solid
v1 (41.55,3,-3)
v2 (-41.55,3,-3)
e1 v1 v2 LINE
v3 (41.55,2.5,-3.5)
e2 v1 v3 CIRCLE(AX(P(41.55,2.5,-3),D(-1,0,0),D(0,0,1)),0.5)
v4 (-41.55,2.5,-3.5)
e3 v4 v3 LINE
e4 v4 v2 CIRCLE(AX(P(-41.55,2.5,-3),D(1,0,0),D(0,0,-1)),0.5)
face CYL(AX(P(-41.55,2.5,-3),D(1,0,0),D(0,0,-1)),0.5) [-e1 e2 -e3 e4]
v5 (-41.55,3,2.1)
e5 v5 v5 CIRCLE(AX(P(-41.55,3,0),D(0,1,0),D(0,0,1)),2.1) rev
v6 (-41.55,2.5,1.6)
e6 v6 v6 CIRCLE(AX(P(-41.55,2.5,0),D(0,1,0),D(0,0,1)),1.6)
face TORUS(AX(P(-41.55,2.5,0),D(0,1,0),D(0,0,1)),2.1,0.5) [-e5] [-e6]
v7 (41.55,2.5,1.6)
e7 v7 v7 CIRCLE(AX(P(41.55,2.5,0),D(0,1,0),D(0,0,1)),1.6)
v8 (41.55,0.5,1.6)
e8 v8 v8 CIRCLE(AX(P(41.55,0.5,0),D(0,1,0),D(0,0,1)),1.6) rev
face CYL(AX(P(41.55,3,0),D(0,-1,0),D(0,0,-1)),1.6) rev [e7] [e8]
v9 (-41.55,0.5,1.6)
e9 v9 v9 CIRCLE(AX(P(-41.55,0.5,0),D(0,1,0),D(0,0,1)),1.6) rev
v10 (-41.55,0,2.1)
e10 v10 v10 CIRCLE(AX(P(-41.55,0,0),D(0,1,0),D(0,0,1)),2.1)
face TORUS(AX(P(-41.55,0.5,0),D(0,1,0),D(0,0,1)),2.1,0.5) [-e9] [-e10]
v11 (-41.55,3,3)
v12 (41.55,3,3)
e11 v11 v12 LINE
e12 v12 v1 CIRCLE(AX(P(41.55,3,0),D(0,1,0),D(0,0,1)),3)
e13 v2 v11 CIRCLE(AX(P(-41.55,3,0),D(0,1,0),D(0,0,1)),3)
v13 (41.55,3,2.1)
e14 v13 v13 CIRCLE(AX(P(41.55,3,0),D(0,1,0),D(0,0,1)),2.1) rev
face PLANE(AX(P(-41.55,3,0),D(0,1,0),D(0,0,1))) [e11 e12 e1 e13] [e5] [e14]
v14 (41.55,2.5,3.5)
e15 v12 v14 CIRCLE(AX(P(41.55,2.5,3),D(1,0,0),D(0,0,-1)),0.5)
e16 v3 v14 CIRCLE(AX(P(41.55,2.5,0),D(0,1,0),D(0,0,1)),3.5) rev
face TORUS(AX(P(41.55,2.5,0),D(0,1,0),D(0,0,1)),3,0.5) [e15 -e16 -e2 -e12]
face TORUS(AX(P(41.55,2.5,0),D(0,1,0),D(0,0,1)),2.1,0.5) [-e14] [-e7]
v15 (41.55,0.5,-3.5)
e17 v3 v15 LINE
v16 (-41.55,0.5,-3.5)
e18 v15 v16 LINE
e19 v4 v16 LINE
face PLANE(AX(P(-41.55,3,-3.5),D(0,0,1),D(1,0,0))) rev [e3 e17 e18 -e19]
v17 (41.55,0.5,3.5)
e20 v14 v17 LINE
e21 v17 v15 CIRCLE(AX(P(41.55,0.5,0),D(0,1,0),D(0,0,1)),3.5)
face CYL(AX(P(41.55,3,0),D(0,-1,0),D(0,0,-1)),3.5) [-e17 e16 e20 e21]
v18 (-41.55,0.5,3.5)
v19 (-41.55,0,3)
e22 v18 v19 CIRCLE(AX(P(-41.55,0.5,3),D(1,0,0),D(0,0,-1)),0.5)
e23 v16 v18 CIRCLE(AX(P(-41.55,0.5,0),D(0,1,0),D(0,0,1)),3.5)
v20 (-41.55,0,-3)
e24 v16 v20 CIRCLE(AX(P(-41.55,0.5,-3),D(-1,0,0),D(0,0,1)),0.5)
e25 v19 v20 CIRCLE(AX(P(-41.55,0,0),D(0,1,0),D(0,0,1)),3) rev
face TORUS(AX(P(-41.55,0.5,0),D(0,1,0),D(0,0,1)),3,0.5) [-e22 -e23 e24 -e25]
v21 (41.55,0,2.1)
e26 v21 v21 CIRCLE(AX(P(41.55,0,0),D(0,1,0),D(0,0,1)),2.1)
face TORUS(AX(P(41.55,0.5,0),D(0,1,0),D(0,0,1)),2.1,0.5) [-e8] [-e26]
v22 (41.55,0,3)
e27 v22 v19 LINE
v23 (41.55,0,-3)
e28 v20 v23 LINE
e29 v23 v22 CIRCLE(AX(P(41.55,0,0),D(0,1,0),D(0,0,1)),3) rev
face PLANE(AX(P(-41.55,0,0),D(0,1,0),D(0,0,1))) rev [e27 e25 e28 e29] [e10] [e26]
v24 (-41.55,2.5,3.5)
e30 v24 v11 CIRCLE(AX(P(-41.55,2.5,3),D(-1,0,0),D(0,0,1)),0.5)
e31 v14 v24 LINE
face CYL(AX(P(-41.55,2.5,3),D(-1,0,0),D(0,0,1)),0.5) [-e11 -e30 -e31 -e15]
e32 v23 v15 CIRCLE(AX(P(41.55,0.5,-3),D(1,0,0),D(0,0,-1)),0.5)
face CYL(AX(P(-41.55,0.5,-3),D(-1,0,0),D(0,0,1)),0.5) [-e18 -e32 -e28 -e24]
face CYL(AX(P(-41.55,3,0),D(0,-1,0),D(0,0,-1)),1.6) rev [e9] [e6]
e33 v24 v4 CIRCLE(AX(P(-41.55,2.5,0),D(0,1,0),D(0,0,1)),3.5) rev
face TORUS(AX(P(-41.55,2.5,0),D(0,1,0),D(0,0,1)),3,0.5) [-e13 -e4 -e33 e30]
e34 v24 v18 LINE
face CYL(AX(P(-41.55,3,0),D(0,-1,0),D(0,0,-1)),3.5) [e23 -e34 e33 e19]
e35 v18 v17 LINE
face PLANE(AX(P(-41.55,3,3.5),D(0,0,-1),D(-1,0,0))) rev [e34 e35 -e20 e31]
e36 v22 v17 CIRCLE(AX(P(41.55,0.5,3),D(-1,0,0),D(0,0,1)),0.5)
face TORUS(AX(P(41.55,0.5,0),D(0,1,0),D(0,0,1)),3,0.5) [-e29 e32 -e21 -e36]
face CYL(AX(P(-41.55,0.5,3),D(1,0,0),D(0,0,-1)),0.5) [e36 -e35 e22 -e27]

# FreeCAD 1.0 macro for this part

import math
import FreeCAD as App
import Part
import Sketcher


def edges_at(feature, points):
    """Names of the edges that pass closest to the given points."""
    edges = feature.Shape.Edges
    near = lambda p: min(range(len(edges)), key=lambda i: edges[i].distToShape(Part.Vertex(*p))[0])
    return sorted({f"Edge{near(p) + 1}" for p in points})

doc = App.newDocument("Part")
body = doc.addObject("PartDesign::Body", "Body")

sketch1 = doc.addObject("Sketcher::SketchObject", "Sketch")
body.addObject(sketch1)
sketch1.AttachmentSupport = (doc.XZ_Plane, [""])
sketch1.MapMode = "FlatFace"
sketch1.addGeometry(Part.LineSegment(App.Vector(41.55, -3.5, 0), App.Vector(-41.55, -3.5, 0)), False)
sketch1.addGeometry(Part.ArcOfCircle(Part.Circle(App.Vector(-41.55, 0, 0), App.Vector(0, 0, 1), 3.5), math.radians(90), math.radians(270)), False)
sketch1.addGeometry(Part.LineSegment(App.Vector(-41.55, 3.5, 0), App.Vector(41.55, 3.5, 0)), False)
sketch1.addGeometry(Part.ArcOfCircle(Part.Circle(App.Vector(41.55, 0, 0), App.Vector(0, 0, 1), 3.5), math.radians(-90), math.radians(90)), False)
sketch1.addGeometry(Part.Circle(App.Vector(41.55, 0, 0), App.Vector(0, 0, 1), 1.6), False)
sketch1.addGeometry(Part.Circle(App.Vector(-41.55, 0, 0), App.Vector(0, 0, 1), 1.6), False)
sketch1.addConstraint(Sketcher.Constraint("Tangent", 0, 2, 1, 2))
sketch1.addConstraint(Sketcher.Constraint("Tangent", 1, 1, 2, 1))
sketch1.addConstraint(Sketcher.Constraint("Tangent", 2, 2, 3, 2))
sketch1.addConstraint(Sketcher.Constraint("Tangent", 3, 1, 0, 1))
sketch1.addConstraint(Sketcher.Constraint("Horizontal", 0))
sketch1.addConstraint(Sketcher.Constraint("Horizontal", 2))
sketch1.addConstraint(Sketcher.Constraint("Coincident", 4, 3, 3, 3))
sketch1.addConstraint(Sketcher.Constraint("Coincident", 5, 3, 1, 3))
sketch1.addConstraint(Sketcher.Constraint("Equal", 4, 5))
sketch1.addConstraint(Sketcher.Constraint("Symmetric", 1, 3, 3, 3, -1, 1))
sketch1.addConstraint(Sketcher.Constraint("Diameter", 4, 3.2))
sketch1.addConstraint(Sketcher.Constraint("Radius", 1, 3.5))
sketch1.addConstraint(Sketcher.Constraint("DistanceX", 0, 2, 0, 1, 83.1))
pad1 = doc.addObject("PartDesign::Pad", "Pad")
body.addObject(pad1)
pad1.Profile = sketch1
pad1.Length = 3
pad1.Reversed = True
doc.recompute()

fillet = doc.addObject("PartDesign::Fillet", "Fillet")
body.addObject(fillet)
fillet.Base = (pad1, edges_at(pad1, [
    (41.55, 0, -1.6),
    (41.55, 3, -1.6),
    (45.05, 3, 0),
    (-41.55, 0, -1.6),
    (-41.55, 3, -1.6),
    (0, 3, -3.5),
    (-45.05, 3, 0),
    (0, 0, -3.5),
    (45.05, 0, 0),
    (0, 0, 3.5),
    (-45.05, 0, 0),
    (0, 3, 3.5),
]))
fillet.Radius = 0.5

doc.recompute()
